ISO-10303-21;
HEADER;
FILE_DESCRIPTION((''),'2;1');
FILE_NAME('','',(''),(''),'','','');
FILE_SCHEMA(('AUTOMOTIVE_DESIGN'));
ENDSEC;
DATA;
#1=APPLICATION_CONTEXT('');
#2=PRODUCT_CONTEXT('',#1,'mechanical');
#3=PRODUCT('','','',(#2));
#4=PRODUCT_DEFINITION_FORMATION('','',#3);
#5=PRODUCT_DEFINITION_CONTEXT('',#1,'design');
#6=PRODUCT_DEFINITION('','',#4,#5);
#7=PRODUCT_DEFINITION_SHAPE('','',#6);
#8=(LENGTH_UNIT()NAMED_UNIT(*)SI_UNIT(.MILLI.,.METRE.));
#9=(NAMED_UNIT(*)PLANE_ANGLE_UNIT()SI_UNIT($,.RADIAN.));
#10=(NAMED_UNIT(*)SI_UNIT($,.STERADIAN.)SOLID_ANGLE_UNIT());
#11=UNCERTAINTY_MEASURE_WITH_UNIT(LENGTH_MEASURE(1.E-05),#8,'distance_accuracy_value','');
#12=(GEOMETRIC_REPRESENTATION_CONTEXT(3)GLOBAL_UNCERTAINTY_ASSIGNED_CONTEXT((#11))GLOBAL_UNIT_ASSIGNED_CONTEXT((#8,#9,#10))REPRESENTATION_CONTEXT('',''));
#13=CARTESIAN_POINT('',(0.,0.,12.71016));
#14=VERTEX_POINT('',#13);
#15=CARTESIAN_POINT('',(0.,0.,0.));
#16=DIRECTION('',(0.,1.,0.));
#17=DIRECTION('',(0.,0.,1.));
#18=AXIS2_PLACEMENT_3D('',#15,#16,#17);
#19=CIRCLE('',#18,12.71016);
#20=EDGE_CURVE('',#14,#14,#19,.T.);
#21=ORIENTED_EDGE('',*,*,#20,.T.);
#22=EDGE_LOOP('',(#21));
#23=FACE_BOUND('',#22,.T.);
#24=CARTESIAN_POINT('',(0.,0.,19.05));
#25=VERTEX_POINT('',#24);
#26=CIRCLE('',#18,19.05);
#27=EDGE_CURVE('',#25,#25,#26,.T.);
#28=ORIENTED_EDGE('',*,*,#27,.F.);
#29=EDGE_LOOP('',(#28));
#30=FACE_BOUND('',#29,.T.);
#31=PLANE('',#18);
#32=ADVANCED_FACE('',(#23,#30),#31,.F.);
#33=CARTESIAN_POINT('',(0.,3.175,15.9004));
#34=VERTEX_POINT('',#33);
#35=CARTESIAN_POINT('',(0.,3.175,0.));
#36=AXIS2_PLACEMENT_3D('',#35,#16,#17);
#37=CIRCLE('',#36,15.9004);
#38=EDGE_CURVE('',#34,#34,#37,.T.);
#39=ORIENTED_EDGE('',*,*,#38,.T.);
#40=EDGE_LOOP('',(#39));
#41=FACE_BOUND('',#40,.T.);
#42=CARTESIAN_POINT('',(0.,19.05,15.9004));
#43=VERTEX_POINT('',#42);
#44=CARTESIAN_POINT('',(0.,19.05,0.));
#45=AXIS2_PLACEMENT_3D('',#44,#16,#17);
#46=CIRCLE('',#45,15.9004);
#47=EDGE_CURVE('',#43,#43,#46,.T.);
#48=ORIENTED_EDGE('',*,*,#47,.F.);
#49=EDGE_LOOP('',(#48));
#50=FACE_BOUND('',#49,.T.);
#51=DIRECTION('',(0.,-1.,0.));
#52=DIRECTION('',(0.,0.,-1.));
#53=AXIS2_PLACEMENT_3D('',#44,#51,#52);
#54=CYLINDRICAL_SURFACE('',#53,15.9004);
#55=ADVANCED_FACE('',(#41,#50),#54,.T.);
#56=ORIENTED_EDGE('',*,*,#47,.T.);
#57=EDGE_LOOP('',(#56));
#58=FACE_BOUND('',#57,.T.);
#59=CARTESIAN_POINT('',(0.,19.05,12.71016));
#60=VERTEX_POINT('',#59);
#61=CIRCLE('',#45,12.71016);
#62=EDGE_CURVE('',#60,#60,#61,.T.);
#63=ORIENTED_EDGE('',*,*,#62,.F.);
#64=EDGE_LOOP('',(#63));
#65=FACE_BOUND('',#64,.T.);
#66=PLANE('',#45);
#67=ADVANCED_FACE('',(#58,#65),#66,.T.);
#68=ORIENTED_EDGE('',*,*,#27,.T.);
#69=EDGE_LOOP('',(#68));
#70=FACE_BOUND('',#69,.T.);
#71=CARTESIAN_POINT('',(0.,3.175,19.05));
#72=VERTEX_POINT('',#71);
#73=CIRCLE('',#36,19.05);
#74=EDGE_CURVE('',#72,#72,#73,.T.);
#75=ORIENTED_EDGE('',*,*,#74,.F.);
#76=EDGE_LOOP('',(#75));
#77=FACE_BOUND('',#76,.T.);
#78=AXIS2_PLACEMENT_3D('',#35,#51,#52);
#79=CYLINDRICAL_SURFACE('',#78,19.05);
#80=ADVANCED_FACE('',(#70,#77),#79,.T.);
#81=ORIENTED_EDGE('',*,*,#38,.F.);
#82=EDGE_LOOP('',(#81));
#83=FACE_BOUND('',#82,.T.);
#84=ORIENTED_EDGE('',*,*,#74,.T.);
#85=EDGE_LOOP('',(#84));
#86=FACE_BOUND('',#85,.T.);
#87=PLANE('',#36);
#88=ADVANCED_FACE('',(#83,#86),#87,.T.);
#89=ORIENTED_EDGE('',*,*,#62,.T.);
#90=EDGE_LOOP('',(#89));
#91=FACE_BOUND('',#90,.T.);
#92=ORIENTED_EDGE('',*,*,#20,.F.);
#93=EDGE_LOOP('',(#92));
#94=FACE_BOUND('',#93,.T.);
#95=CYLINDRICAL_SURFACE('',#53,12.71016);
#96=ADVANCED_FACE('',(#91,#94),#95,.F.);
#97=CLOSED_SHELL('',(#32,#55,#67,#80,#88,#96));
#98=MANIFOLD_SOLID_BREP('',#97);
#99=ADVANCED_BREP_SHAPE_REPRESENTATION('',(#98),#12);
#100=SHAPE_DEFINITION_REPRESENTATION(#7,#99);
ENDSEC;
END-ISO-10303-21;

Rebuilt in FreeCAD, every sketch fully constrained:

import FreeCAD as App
import Part
import Sketcher
from FreeCAD import Vector
Q = App.Units.Quantity

doc = App.newDocument("Part")
body = doc.addObject("PartDesign::Body", "Body")

# Sketch on XZ plane
sketch1 = body.newObject("Sketcher::SketchObject", "Sketch")
sketch1.AttachmentSupport = (doc.getObject("XZ_Plane"), [""])
sketch1.MapMode = "FlatFace"
sketch1.addGeometry([
    Part.Circle(Vector(0, 0, 0), Vector(0, 0, 1), 16),
    Part.Circle(Vector(0, 0, 0), Vector(0, 0, 1), 13),
], False)
sketch1.addConstraint([
    Sketcher.Constraint("Coincident", 0, 3, -1, 1),
    Sketcher.Constraint("Coincident", 1, 3, -1, 1),
    Sketcher.Constraint("Diameter", 0, Q("1.252 in")),
    Sketcher.Constraint("Diameter", 1, Q("1.0008 in")),
])
pad1 = body.newObject("PartDesign::Pad", "Pad")
pad1.Profile = sketch1
pad1.Length = Q("0.75 in")
pad1.Reversed = True

# Sketch on XZ plane
sketch2 = body.newObject("Sketcher::SketchObject", "Sketch001")
sketch2.AttachmentSupport = (doc.getObject("XZ_Plane"), [""])
sketch2.MapMode = "FlatFace"
sketch2.addGeometry([
    Part.Circle(Vector(0, 0, 0), Vector(0, 0, 1), 19),
    Part.Circle(Vector(0, 0, 0), Vector(0, 0, 1), 16),
], False)
sketch2.addConstraint([
    Sketcher.Constraint("Coincident", 0, 3, -1, 1),
    Sketcher.Constraint("Coincident", 1, 3, -1, 1),
    Sketcher.Constraint("Diameter", 0, Q("1.5 in")),
    Sketcher.Constraint("Diameter", 1, Q("1.252 in")),
])
pad2 = body.newObject("PartDesign::Pad", "Pad001")
pad2.Profile = sketch2
pad2.Length = Q("0.125 in")
pad2.Reversed = True

doc.recompute()
